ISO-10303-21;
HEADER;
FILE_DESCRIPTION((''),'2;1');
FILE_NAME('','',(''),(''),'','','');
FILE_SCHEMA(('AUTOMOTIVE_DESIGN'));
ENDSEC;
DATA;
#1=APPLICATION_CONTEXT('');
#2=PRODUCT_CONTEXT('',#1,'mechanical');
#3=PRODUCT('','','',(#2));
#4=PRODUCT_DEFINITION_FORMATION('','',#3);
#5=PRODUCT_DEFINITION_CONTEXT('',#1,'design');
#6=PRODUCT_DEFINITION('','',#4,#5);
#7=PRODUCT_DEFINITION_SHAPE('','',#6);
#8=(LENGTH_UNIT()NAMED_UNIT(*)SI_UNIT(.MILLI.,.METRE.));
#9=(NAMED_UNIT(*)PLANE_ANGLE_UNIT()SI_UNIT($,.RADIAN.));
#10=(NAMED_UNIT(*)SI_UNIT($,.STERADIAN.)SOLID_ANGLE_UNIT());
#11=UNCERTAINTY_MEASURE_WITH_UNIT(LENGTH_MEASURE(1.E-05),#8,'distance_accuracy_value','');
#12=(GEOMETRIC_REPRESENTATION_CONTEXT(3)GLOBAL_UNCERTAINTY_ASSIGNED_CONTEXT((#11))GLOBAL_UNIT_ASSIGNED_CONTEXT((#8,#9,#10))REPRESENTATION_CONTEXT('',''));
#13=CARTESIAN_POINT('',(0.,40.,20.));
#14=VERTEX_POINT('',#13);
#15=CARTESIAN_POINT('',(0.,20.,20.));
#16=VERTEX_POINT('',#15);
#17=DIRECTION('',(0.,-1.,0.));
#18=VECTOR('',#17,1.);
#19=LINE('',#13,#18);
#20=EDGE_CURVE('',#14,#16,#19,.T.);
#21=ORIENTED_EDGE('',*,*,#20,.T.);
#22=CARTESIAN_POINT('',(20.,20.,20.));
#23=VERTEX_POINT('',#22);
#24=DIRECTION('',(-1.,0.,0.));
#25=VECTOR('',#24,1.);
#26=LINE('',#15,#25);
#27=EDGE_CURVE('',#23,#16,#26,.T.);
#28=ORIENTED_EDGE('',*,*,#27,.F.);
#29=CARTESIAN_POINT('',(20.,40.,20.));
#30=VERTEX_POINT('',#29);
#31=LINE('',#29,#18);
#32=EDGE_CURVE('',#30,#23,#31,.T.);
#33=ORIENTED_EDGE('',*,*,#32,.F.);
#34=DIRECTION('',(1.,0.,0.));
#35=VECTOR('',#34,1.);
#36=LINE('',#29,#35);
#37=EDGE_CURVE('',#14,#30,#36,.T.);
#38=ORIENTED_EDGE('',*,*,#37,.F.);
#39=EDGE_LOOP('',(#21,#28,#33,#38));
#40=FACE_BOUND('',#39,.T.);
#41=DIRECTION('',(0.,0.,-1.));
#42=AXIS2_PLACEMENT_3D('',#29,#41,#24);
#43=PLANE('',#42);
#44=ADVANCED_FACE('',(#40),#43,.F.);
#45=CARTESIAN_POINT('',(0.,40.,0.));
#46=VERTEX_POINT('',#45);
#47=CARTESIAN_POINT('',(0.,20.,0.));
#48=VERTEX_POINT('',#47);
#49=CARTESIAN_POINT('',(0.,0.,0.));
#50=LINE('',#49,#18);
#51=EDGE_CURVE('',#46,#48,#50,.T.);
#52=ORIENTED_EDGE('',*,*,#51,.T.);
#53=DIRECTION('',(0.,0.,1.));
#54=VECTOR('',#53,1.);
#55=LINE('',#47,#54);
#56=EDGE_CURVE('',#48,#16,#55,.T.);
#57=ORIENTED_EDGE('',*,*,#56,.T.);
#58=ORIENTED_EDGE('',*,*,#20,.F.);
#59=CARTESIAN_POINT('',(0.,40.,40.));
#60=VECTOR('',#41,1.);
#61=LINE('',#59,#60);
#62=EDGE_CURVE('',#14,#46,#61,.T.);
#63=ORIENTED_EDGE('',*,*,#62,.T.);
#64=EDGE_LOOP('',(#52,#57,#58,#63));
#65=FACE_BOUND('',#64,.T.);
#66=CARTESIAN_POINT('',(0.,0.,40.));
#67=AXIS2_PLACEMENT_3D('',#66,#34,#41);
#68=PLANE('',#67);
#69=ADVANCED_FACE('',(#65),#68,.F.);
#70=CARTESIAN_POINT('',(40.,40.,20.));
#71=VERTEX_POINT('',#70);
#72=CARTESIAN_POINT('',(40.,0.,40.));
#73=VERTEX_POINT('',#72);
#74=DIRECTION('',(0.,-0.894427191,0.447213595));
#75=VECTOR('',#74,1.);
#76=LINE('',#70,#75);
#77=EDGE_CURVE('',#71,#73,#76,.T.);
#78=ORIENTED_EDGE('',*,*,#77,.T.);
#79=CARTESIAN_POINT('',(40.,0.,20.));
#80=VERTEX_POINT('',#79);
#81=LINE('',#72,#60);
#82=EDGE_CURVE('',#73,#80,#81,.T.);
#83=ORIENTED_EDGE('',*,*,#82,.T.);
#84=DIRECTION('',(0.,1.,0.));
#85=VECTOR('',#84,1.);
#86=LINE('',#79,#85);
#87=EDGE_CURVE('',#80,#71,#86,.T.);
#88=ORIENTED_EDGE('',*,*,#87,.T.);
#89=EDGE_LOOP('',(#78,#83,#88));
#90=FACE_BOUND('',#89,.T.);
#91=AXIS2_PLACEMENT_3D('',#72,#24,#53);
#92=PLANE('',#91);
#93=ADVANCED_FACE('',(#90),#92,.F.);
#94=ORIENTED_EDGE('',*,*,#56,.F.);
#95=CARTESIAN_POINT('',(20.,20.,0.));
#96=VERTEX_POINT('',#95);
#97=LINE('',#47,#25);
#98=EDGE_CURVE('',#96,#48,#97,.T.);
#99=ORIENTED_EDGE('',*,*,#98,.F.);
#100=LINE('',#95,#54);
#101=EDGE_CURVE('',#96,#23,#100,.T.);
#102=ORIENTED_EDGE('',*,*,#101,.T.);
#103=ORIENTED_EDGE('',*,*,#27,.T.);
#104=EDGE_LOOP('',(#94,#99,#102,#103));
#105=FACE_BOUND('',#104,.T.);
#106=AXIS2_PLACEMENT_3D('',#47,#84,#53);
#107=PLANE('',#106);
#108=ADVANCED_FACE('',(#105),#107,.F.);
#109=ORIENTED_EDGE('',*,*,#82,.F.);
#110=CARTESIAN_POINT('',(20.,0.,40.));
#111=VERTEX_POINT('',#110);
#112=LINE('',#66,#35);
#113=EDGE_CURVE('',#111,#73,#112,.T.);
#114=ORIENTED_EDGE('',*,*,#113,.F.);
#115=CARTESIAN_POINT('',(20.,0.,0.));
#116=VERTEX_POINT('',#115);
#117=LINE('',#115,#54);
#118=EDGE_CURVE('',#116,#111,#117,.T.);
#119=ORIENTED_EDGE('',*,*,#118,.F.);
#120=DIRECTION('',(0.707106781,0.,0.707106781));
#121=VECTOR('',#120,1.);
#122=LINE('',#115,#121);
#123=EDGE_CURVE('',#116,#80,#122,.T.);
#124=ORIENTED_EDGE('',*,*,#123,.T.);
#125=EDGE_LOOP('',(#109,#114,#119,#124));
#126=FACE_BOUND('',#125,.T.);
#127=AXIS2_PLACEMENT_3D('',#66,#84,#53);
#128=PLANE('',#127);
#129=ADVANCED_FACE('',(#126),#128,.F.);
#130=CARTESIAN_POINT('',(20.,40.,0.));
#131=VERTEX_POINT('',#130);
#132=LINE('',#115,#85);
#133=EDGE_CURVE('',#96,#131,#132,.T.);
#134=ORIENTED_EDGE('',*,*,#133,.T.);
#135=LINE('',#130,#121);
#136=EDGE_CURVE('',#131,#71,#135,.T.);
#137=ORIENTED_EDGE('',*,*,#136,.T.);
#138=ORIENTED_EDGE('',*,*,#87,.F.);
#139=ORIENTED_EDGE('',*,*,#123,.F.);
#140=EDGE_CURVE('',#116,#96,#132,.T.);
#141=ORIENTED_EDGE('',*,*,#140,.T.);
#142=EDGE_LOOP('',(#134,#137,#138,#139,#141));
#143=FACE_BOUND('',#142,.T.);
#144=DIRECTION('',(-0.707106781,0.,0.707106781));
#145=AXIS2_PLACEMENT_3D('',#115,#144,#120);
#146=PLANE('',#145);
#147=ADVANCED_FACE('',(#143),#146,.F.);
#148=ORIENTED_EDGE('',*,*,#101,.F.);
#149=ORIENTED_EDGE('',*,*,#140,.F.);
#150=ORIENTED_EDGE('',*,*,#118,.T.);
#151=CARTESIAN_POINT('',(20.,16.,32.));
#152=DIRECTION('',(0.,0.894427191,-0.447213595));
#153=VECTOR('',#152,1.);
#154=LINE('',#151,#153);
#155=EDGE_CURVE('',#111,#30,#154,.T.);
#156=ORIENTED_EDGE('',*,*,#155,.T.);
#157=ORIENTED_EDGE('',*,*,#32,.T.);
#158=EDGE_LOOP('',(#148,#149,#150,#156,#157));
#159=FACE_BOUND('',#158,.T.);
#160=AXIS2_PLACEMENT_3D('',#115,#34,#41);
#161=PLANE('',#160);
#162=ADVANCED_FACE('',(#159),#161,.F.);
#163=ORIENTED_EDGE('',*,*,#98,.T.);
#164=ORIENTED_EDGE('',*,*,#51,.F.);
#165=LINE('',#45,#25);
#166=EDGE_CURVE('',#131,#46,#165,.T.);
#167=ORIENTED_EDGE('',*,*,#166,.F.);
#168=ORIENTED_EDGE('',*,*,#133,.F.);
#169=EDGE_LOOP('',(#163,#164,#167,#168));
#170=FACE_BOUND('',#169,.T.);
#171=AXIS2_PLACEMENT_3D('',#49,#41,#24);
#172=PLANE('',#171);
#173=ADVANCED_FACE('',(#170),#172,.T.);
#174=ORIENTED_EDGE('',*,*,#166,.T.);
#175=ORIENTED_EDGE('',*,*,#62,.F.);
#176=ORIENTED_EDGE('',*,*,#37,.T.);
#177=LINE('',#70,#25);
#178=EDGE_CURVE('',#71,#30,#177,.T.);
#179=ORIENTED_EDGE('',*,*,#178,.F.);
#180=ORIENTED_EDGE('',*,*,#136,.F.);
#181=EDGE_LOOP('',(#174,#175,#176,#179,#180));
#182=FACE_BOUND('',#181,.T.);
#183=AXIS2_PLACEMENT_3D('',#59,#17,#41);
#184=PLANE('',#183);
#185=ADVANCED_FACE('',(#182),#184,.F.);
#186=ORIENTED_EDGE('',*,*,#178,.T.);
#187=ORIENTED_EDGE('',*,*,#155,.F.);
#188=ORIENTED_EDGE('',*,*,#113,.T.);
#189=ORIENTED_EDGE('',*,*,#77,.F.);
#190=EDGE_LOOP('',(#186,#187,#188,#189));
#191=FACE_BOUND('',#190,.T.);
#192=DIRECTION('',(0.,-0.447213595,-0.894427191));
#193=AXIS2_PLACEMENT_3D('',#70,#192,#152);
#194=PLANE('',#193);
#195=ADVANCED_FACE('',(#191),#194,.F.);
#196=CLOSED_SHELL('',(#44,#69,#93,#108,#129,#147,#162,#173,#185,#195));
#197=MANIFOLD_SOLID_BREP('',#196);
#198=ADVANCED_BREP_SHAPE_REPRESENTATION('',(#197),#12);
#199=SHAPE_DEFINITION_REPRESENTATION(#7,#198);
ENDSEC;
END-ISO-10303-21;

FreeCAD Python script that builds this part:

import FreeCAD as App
import Part
import Sketcher
from FreeCAD import Vector
Q = App.Units.Quantity

doc = App.newDocument("Part")
body = doc.addObject("PartDesign::Body", "Body")

# Sketch on XY plane
sketch1 = doc.addObject("Sketcher::SketchObject", "Sketch")
body.addObject(sketch1)
sketch1.AttachmentSupport = (doc.XY_Plane, [""])
sketch1.MapMode = "FlatFace"
sketch1.addGeometry([
    Part.LineSegment(Vector(0, 40, 0), Vector(0, 0, 0)),
    Part.LineSegment(Vector(0, 0, 0), Vector(40, 0, 0)),
    Part.LineSegment(Vector(40, 0, 0), Vector(40, 40, 0)),
    Part.LineSegment(Vector(40, 40, 0), Vector(0, 40, 0)),
], False)
sketch1.addConstraint([
    Sketcher.Constraint("Coincident", 0, 2, 1, 1),
    Sketcher.Constraint("Coincident", 1, 2, 2, 1),
    Sketcher.Constraint("Coincident", 2, 2, 3, 1),
    Sketcher.Constraint("Coincident", 3, 2, 0, 1),
    Sketcher.Constraint("Vertical", 0),
    Sketcher.Constraint("Horizontal", 1),
    Sketcher.Constraint("Vertical", 2),
    Sketcher.Constraint("Horizontal", 3),
    Sketcher.Constraint("Coincident", 0, 2, -1, 1),
    Sketcher.Constraint("Equal", 3, 0),
    Sketcher.Constraint("DistanceX", 1, 1, 1, 2, Q("40 mm")),
])
pad1 = doc.addObject("PartDesign::Pad", "Pad")
body.addObject(pad1)
pad1.Profile = sketch1
pad1.Length = 40

# Sketch on XY plane
sketch2 = doc.addObject("Sketcher::SketchObject", "Sketch001")
body.addObject(sketch2)
sketch2.AttachmentSupport = (doc.XY_Plane, [""])
sketch2.MapMode = "FlatFace"
sketch2.AttachmentOffset = App.Placement(Vector(0, 0, 40), App.Rotation())
sketch2.addGeometry([
    Part.LineSegment(Vector(0, 20, 0), Vector(0, 0, 0)),
    Part.LineSegment(Vector(0, 0, 0), Vector(20, 0, 0)),
    Part.LineSegment(Vector(20, 0, 0), Vector(20, 20, 0)),
    Part.LineSegment(Vector(20, 20, 0), Vector(0, 20, 0)),
], False)
sketch2.addConstraint([
    Sketcher.Constraint("Coincident", 0, 2, 1, 1),
    Sketcher.Constraint("Coincident", 1, 2, 2, 1),
    Sketcher.Constraint("Coincident", 2, 2, 3, 1),
    Sketcher.Constraint("Coincident", 3, 2, 0, 1),
    Sketcher.Constraint("Vertical", 0),
    Sketcher.Constraint("Horizontal", 1),
    Sketcher.Constraint("Vertical", 2),
    Sketcher.Constraint("Horizontal", 3),
    Sketcher.Constraint("Coincident", 0, 2, -1, 1),
    Sketcher.Constraint("Equal", 3, 0),
    Sketcher.Constraint("DistanceX", 1, 1, 1, 2, Q("20 mm")),
])
pocket1 = doc.addObject("PartDesign::Pocket", "Pocket")
body.addObject(pocket1)
pocket1.Profile = sketch2
pocket1.Length = 40

# Sketch on YZ plane
sketch3 = doc.addObject("Sketcher::SketchObject", "Sketch002")
body.addObject(sketch3)
sketch3.AttachmentSupport = (doc.YZ_Plane, [""])
sketch3.MapMode = "FlatFace"
sketch3.addGeometry([
    Part.LineSegment(Vector(40, 20, 0), Vector(0, 40, 0)),
    Part.LineSegment(Vector(0, 40, 0), Vector(40, 40, 0)),
    Part.LineSegment(Vector(40, 40, 0), Vector(40, 20, 0)),
], False)
sketch3.addConstraint([
    Sketcher.Constraint("Coincident", 0, 2, 1, 1),
    Sketcher.Constraint("Coincident", 1, 2, 2, 1),
    Sketcher.Constraint("Coincident", 2, 2, 0, 1),
    Sketcher.Constraint("Horizontal", 1),
    Sketcher.Constraint("Vertical", 2),
    Sketcher.Constraint("PointOnObject", 0, 2, -2),
    Sketcher.Constraint("DistanceX", 1, 1, 1, 2, Q("40 mm")),
    Sketcher.Constraint("DistanceY", 2, 2, 2, 1, Q("20 mm")),
    Sketcher.Constraint("DistanceY", -1, 1, 0, 2, Q("40 mm")),
])
pocket2 = doc.addObject("PartDesign::Pocket", "Pocket001")
body.addObject(pocket2)
pocket2.Profile = sketch3
pocket2.Length = 40
pocket2.Reversed = True

# Sketch on XZ plane
sketch4 = doc.addObject("Sketcher::SketchObject", "Sketch003")
body.addObject(sketch4)
sketch4.AttachmentSupport = (doc.XZ_Plane, [""])
sketch4.MapMode = "FlatFace"
sketch4.addGeometry([
    Part.LineSegment(Vector(20, 20, 0), Vector(20, 40, 0)),
    Part.LineSegment(Vector(20, 40, 0), Vector(0, 40, 0)),
    Part.LineSegment(Vector(0, 40, 0), Vector(0, 20, 0)),
    Part.LineSegment(Vector(0, 20, 0), Vector(20, 20, 0)),
], False)
sketch4.addConstraint([
    Sketcher.Constraint("Coincident", 0, 2, 1, 1),
    Sketcher.Constraint("Coincident", 1, 2, 2, 1),
    Sketcher.Constraint("Coincident", 2, 2, 3, 1),
    Sketcher.Constraint("Coincident", 3, 2, 0, 1),
    Sketcher.Constraint("Vertical", 0),
    Sketcher.Constraint("Horizontal", 1),
    Sketcher.Constraint("Vertical", 2),
    Sketcher.Constraint("Horizontal", 3),
    Sketcher.Constraint("PointOnObject", 1, 2, -2),
    Sketcher.Constraint("Equal", 3, 0),
    Sketcher.Constraint("DistanceX", 1, 2, 1, 1, Q("20 mm")),
    Sketcher.Constraint("DistanceY", -1, 1, 0, 2, Q("40 mm")),
])
pocket3 = doc.addObject("PartDesign::Pocket", "Pocket002")
body.addObject(pocket3)
pocket3.Profile = sketch4
pocket3.Length = 40

# Sketch on XZ plane
sketch5 = doc.addObject("Sketcher::SketchObject", "Sketch004")
body.addObject(sketch5)
sketch5.AttachmentSupport = (doc.XZ_Plane, [""])
sketch5.MapMode = "FlatFace"
sketch5.AttachmentOffset = App.Placement(Vector(0, 0, -40), App.Rotation())
sketch5.addGeometry([
    Part.LineSegment(Vector(20, 0, 0), Vector(40, 20, 0)),
    Part.LineSegment(Vector(40, 20, 0), Vector(40, 0, 0)),
    Part.LineSegment(Vector(40, 0, 0), Vector(20, 0, 0)),
], False)
sketch5.addConstraint([
    Sketcher.Constraint("Coincident", 0, 2, 1, 1),
    Sketcher.Constraint("Coincident", 1, 2, 2, 1),
    Sketcher.Constraint("Coincident", 2, 2, 0, 1),
    Sketcher.Constraint("Vertical", 1),
    Sketcher.Constraint("Horizontal", 2),
    Sketcher.Constraint("PointOnObject", 1, 2, -1),
    Sketcher.Constraint("Equal", 2, 1),
    Sketcher.Constraint("DistanceX", 2, 2, 2, 1, Q("20 mm")),
    Sketcher.Constraint("DistanceX", -1, 1, 0, 2, Q("40 mm")),
])
pocket4 = doc.addObject("PartDesign::Pocket", "Pocket003")
body.addObject(pocket4)
pocket4.Profile = sketch5
pocket4.Length = 40
pocket4.Reversed = True

doc.recompute()
